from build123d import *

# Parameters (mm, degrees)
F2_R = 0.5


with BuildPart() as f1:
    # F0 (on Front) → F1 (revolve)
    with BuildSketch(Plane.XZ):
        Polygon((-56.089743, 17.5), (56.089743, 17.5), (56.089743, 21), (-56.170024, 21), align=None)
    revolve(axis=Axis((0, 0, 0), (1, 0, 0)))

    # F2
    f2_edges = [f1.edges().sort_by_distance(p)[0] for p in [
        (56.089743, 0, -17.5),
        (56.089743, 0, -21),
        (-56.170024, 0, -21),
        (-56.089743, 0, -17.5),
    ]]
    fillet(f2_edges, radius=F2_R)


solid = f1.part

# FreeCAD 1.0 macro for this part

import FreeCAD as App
import Part
import Sketcher
from FreeCAD import Vector
Q = App.Units.Quantity


def edges_at(feature, points):
    """Names of the edges that pass closest to the given points."""
    edges = feature.Shape.Edges
    near = lambda p: min(range(len(edges)), key=lambda i: edges[i].distToShape(Part.Vertex(*p))[0])
    return sorted({f"Edge{near(p) + 1}" for p in points})


def add_polygon(sketch, points):
    """Adds a closed chain of lines whose ends are joined by coincident constraints."""
    first, n = sketch.GeometryCount, len(points)
    for a, b in zip(points, points[1:] + points[:1]):
        sketch.addGeometry(Part.LineSegment(App.Vector(*a, 0), App.Vector(*b, 0)), False)
    for i in range(n):
        sketch.addConstraint(Sketcher.Constraint("Coincident", first + i, 2, first + (i + 1) % n, 1))

doc = App.newDocument("Part")
body = doc.addObject("PartDesign::Body", "Body")

# Sketch on XZ plane
sketch1 = body.newObject("Sketcher::SketchObject", "Sketch")
sketch1.AttachmentSupport = (doc.getObject("XZ_Plane"), [""])
sketch1.MapMode = "FlatFace"
add_polygon(sketch1, [(-56.1, 17.5), (56.1, 17.5), (56.1, 21), (-56.2, 21)])  # lines 0-3
sketch1.addConstraint([
    Sketcher.Constraint("Horizontal", 0),
    Sketcher.Constraint("Vertical", 1),
    Sketcher.Constraint("Horizontal", 2),
    Sketcher.Constraint("DistanceY", 1, 1, 1, 2, Q("3.5 mm")),
    Sketcher.Constraint("DistanceY", -1, 1, 1, 2, Q("21 mm")),
    Sketcher.Constraint("Distance", 3, Q("3.500921 mm")),
    Sketcher.Constraint("DistanceX", 0, 1, 0, 2, Q("112.179486 mm")),
    Sketcher.Constraint("DistanceX", -1, 1, 0, 2, Q("56.089743 mm")),
])
revolution = body.newObject("PartDesign::Revolution", "Revolution")
revolution.Profile = sketch1
revolution.ReferenceAxis = (sketch1, ["H_Axis"])
revolution.Angle = 360
doc.recompute()

fillet = body.newObject("PartDesign::Fillet", "Fillet")
fillet.Base = (revolution, edges_at(revolution, [
    (56.09, 0, -17.5),
    (56.09, 0, -21),
    (-56.17, 0, -21),
    (-56.09, 0, -17.5),
]))
fillet.Radius = 0.5

doc.recompute()
